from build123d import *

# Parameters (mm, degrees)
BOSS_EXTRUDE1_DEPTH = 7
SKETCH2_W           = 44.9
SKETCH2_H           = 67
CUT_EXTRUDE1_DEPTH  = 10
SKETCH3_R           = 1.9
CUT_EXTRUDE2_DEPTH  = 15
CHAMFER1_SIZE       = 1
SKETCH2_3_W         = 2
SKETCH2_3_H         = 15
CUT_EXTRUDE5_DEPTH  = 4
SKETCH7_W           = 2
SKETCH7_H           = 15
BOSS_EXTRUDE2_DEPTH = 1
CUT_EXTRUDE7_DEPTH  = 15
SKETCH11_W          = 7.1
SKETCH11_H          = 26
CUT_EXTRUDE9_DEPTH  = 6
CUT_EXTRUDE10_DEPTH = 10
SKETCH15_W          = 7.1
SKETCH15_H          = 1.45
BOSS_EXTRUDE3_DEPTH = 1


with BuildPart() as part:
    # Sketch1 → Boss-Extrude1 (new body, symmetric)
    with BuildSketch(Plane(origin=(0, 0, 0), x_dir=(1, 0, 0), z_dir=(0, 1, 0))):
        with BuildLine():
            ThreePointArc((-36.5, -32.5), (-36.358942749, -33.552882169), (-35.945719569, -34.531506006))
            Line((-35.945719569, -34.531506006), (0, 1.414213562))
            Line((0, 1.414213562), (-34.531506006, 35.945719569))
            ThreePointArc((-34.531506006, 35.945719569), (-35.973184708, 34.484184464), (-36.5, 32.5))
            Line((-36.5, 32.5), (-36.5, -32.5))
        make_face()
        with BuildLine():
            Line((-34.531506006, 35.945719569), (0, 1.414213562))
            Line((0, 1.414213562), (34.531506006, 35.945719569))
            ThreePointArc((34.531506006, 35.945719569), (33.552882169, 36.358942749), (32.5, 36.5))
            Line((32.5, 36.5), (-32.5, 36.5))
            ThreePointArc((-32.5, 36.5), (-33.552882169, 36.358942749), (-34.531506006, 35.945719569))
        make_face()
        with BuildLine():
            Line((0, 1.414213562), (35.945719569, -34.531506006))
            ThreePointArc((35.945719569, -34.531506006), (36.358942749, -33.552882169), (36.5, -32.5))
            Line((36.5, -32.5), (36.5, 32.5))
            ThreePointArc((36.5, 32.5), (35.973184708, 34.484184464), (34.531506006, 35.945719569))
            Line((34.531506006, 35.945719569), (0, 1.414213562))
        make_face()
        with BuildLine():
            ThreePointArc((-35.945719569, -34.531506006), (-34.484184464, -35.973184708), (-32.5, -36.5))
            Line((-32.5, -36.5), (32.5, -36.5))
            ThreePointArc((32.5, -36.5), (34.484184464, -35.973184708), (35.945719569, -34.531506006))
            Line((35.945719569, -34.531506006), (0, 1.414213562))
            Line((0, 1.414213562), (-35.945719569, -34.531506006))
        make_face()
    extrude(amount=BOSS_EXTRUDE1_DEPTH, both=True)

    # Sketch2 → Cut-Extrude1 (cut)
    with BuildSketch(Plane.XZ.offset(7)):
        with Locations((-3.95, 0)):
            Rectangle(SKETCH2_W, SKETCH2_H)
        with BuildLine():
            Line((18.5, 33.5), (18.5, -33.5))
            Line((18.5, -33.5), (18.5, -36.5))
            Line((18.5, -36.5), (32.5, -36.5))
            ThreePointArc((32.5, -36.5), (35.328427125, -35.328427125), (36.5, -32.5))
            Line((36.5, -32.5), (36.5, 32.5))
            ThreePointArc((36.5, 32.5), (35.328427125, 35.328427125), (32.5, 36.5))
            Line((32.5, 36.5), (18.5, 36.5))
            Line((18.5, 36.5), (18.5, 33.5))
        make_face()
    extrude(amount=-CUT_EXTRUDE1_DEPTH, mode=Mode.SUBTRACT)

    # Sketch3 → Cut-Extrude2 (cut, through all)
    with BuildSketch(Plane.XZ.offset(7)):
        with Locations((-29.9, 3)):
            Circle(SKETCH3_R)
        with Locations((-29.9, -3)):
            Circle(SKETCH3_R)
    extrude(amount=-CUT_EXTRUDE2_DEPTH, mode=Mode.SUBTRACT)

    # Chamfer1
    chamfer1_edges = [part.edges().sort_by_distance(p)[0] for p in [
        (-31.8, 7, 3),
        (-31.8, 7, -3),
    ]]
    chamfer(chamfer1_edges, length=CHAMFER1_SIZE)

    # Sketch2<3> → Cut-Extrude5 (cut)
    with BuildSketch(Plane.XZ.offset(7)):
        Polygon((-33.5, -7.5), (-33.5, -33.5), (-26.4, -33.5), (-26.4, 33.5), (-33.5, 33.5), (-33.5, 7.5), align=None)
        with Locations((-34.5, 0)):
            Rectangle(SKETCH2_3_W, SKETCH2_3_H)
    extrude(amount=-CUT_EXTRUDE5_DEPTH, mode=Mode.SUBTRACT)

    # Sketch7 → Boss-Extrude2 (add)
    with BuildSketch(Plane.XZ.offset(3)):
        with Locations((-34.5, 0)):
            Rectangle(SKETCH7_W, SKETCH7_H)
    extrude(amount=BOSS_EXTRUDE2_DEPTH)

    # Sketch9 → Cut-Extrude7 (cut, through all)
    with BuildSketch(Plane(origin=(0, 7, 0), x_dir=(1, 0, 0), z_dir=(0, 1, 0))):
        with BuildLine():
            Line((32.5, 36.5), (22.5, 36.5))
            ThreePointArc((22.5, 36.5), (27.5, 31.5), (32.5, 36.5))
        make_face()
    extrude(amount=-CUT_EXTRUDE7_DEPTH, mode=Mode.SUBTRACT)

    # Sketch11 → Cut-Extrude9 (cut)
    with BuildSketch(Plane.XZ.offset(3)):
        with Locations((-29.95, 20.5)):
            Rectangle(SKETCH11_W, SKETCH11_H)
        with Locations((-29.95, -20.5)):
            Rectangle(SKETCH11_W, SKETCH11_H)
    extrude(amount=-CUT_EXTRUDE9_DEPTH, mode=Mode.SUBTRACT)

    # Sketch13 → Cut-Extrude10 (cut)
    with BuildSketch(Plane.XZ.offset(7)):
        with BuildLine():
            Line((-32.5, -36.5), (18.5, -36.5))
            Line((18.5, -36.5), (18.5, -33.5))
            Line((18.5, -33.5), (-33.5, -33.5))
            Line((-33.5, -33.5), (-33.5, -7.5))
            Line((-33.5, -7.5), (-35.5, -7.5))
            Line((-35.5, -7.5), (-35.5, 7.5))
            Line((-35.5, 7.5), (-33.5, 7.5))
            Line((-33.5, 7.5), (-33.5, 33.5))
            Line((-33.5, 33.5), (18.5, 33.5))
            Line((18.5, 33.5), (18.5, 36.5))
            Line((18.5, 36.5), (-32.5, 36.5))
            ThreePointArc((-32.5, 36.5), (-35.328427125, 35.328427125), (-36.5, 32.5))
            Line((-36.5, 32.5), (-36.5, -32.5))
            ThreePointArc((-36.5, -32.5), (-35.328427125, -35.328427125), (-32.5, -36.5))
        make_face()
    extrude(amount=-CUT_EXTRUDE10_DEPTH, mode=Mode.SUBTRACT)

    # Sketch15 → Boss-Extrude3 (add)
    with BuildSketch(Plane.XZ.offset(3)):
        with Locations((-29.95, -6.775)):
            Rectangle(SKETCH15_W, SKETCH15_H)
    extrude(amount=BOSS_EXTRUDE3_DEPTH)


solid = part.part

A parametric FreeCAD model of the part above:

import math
import FreeCAD as App
import Part
import Sketcher
Q = App.Units.Quantity


def edges_at(feature, points):
    """Names of the edges that pass closest to the given points."""
    edges = feature.Shape.Edges
    near = lambda p: min(range(len(edges)), key=lambda i: edges[i].distToShape(Part.Vertex(*p))[0])
    return sorted({f"Edge{near(p) + 1}" for p in points})

doc = App.newDocument("Part")
params = doc.addObject("Spreadsheet::Sheet", "Params")
for row, (alias, value) in enumerate([
    ("sketch1_radius", "4 mm"),
    ("sketch1_width", "65 mm"),
    ("pad1_length", "14 mm"),
    ("sketch2_radius", "4 mm"),
    ("sketch2_width", "14 mm"),
    ("sketch2_height", "67 mm"),
    ("sketch2_height2", "3 mm"),
    ("sketch2_width2", "44.9 mm"),
    ("pocket1_length", "10 mm"),
    ("sketch3_diameter", "3.8 mm"),
    ("chamfer_size", "1 mm"),
    ("sketch4_width", "2 mm"),
    ("sketch4_height", "67 mm"),
    ("sketch4_height2", "26 mm"),
    ("sketch4_width2", "7.1 mm"),
    ("pocket3_length", "4 mm"),
    ("sketch5_width", "2 mm"),
    ("sketch5_height", "15 mm"),
    ("pad2_length", "1 mm"),
    ("sketch6_radius", "5 mm"),
    ("sketch7_height", "26 mm"),
    ("sketch7_width", "7.1 mm"),
    ("pocket5_length", "6 mm"),
    ("sketch8_radius", "4 mm"),
    ("sketch8_width", "51 mm"),
    ("sketch8_width2", "52 mm"),
    ("sketch8_width3", "2 mm"),
    ("sketch8_height", "3 mm"),
    ("pocket6_length", "10 mm"),
    ("sketch9_width", "7.1 mm"),
    ("sketch9_height", "1.45 mm"),
    ("pad3_length", "1 mm"),
], start=1):
    params.set(f"A{row}", alias)
    params.set(f"B{row}", "=" + value)
    params.setAlias(f"B{row}", alias)

body = doc.addObject("PartDesign::Body", "Body")

# Sketch on XZ plane
sketch1 = doc.addObject("Sketcher::SketchObject", "Sketch")
body.addObject(sketch1)
sketch1.AttachmentSupport = (doc.XZ_Plane, [""])
sketch1.MapMode = "FlatFace"
sketch1.addGeometry(Part.ArcOfCircle(Part.Circle(App.Vector(-32.5, 32.5, 0), App.Vector(0, 0, 1), 4), math.radians(149.477512), math.radians(180)), False)
sketch1.addGeometry(Part.ArcOfCircle(Part.Circle(App.Vector(-32.5, 32.5, 0), App.Vector(0, 0, 1), 4), math.radians(90), math.radians(149.477512)), False)
sketch1.addGeometry(Part.LineSegment(App.Vector(-32.5, 36.5, 0), App.Vector(32.5, 36.5, 0)), False)
sketch1.addGeometry(Part.ArcOfCircle(Part.Circle(App.Vector(32.5, 32.5, 0), App.Vector(0, 0, 1), 4), math.radians(30.522488), math.radians(90)), False)
sketch1.addGeometry(Part.ArcOfCircle(Part.Circle(App.Vector(32.5, 32.5, 0), App.Vector(0, 0, 1), 4), math.radians(0), math.radians(30.522488)), False)
sketch1.addGeometry(Part.LineSegment(App.Vector(36.5, 32.5, 0), App.Vector(36.5, -32.5, 0)), False)
sketch1.addGeometry(Part.ArcOfCircle(Part.Circle(App.Vector(32.5, -32.5, 0), App.Vector(0, 0, 1), 4), math.radians(-59.477512), math.radians(0)), False)
sketch1.addGeometry(Part.ArcOfCircle(Part.Circle(App.Vector(32.5, -32.5, 0), App.Vector(0, 0, 1), 4), math.radians(-90), math.radians(-59.477512)), False)
sketch1.addGeometry(Part.LineSegment(App.Vector(32.5, -36.5, 0), App.Vector(-32.5, -36.5, 0)), False)
sketch1.addGeometry(Part.ArcOfCircle(Part.Circle(App.Vector(-32.5, -32.5, 0), App.Vector(0, 0, 1), 4), math.radians(-120.522488), math.radians(-90)), False)
sketch1.addGeometry(Part.ArcOfCircle(Part.Circle(App.Vector(-32.5, -32.5, 0), App.Vector(0, 0, 1), 4), math.radians(180), math.radians(239.477512)), False)
sketch1.addGeometry(Part.LineSegment(App.Vector(-36.5, -32.5, 0), App.Vector(-36.5, 32.5, 0)), False)
sketch1.addConstraint(Sketcher.Constraint("Tangent", 0, 1, 1, 2))
sketch1.addConstraint(Sketcher.Constraint("Tangent", 1, 1, 2, 1))
sketch1.addConstraint(Sketcher.Constraint("Tangent", 2, 2, 3, 2))
sketch1.addConstraint(Sketcher.Constraint("Tangent", 3, 1, 4, 2))
sketch1.addConstraint(Sketcher.Constraint("Tangent", 4, 1, 5, 1))
sketch1.addConstraint(Sketcher.Constraint("Tangent", 5, 2, 6, 2))
sketch1.addConstraint(Sketcher.Constraint("Tangent", 6, 1, 7, 2))
sketch1.addConstraint(Sketcher.Constraint("Tangent", 7, 1, 8, 1))
sketch1.addConstraint(Sketcher.Constraint("Tangent", 8, 2, 9, 2))
sketch1.addConstraint(Sketcher.Constraint("Tangent", 9, 1, 10, 2))
sketch1.addConstraint(Sketcher.Constraint("Tangent", 10, 1, 11, 1))
sketch1.addConstraint(Sketcher.Constraint("Tangent", 11, 2, 0, 2))
sketch1.addConstraint(Sketcher.Constraint("Horizontal", 2))
sketch1.addConstraint(Sketcher.Constraint("Vertical", 5))
sketch1.addConstraint(Sketcher.Constraint("Horizontal", 8))
sketch1.addConstraint(Sketcher.Constraint("Vertical", 11))
sketch1.addConstraint(Sketcher.Constraint("Equal", 0, 1))
sketch1.addConstraint(Sketcher.Constraint("Equal", 1, 3))
sketch1.addConstraint(Sketcher.Constraint("Equal", 3, 4))
sketch1.addConstraint(Sketcher.Constraint("Equal", 4, 6))
sketch1.addConstraint(Sketcher.Constraint("Equal", 6, 7))
sketch1.addConstraint(Sketcher.Constraint("Equal", 7, 9))
sketch1.addConstraint(Sketcher.Constraint("Equal", 9, 10))
sketch1.addConstraint(Sketcher.Constraint("Symmetric", 0, 3, 6, 3, -1, 1))
sketch1.addConstraint(Sketcher.Constraint("Horizontal", 0, 1, 3, 1))
sketch1.addConstraint(Sketcher.Constraint("Horizontal", 6, 1, 9, 1))
sketch1.addConstraint(Sketcher.Constraint("Equal", 8, 5))
sketch1.addConstraint(Sketcher.Constraint("Radius", 0, Q("4 mm")))
sketch1.addConstraint(Sketcher.Constraint("DistanceX", 2, 1, 2, 2, Q("65 mm")))
sketch1.addConstraint(Sketcher.Constraint("DistanceX", 0, 1, -1, 1, Q("35.94572 mm")))
sketch1.addConstraint(Sketcher.Constraint("DistanceY", 6, 1, -1, 1, Q("35.94572 mm")))
sketch1.setExpression("Constraints[27]", "Params.sketch1_radius")
sketch1.setExpression("Constraints[28]", "Params.sketch1_width")
pad1 = doc.addObject("PartDesign::Pad", "Pad")
body.addObject(pad1)
pad1.Profile = sketch1
pad1.setExpression("Length", "Params.pad1_length")
pad1.Midplane = True

# Sketch on XZ plane
sketch2 = doc.addObject("Sketcher::SketchObject", "Sketch001")
body.addObject(sketch2)
sketch2.AttachmentSupport = (doc.XZ_Plane, [""])
sketch2.MapMode = "FlatFace"
sketch2.AttachmentOffset = App.Placement(App.Vector(0, 0, 7), App.Rotation())
sketch2.addGeometry(Part.LineSegment(App.Vector(-26.4, 33.5, 0), App.Vector(-26.4, -33.5, 0)), False)
sketch2.addGeometry(Part.LineSegment(App.Vector(-26.4, -33.5, 0), App.Vector(18.5, -33.5, 0)), False)
sketch2.addGeometry(Part.LineSegment(App.Vector(18.5, -33.5, 0), App.Vector(18.5, -36.5, 0)), False)
sketch2.addGeometry(Part.LineSegment(App.Vector(18.5, -36.5, 0), App.Vector(32.5, -36.5, 0)), False)
sketch2.addGeometry(Part.ArcOfCircle(Part.Circle(App.Vector(32.5, -32.5, 0), App.Vector(0, 0, 1), 4), math.radians(-90), math.radians(0)), False)
sketch2.addGeometry(Part.LineSegment(App.Vector(36.5, -32.5, 0), App.Vector(36.5, 32.5, 0)), False)
sketch2.addGeometry(Part.ArcOfCircle(Part.Circle(App.Vector(32.5, 32.5, 0), App.Vector(0, 0, 1), 4), math.radians(0), math.radians(90)), False)
sketch2.addGeometry(Part.LineSegment(App.Vector(32.5, 36.5, 0), App.Vector(18.5, 36.5, 0)), False)
sketch2.addGeometry(Part.LineSegment(App.Vector(18.5, 36.5, 0), App.Vector(18.5, 33.5, 0)), False)
sketch2.addGeometry(Part.LineSegment(App.Vector(18.5, 33.5, 0), App.Vector(-26.4, 33.5, 0)), False)
sketch2.addConstraint(Sketcher.Constraint("Coincident", 0, 2, 1, 1))
sketch2.addConstraint(Sketcher.Constraint("Coincident", 1, 2, 2, 1))
sketch2.addConstraint(Sketcher.Constraint("Coincident", 2, 2, 3, 1))
sketch2.addConstraint(Sketcher.Constraint("Tangent", 3, 2, 4, 1))
sketch2.addConstraint(Sketcher.Constraint("Tangent", 4, 2, 5, 1))
sketch2.addConstraint(Sketcher.Constraint("Tangent", 5, 2, 6, 1))
sketch2.addConstraint(Sketcher.Constraint("Tangent", 6, 2, 7, 1))
sketch2.addConstraint(Sketcher.Constraint("Coincident", 7, 2, 8, 1))
sketch2.addConstraint(Sketcher.Constraint("Coincident", 8, 2, 9, 1))
sketch2.addConstraint(Sketcher.Constraint("Coincident", 9, 2, 0, 1))
sketch2.addConstraint(Sketcher.Constraint("Vertical", 0))
sketch2.addConstraint(Sketcher.Constraint("Horizontal", 1))
sketch2.addConstraint(Sketcher.Constraint("Vertical", 2))
sketch2.addConstraint(Sketcher.Constraint("Horizontal", 3))
sketch2.addConstraint(Sketcher.Constraint("Vertical", 5))
sketch2.addConstraint(Sketcher.Constraint("Horizontal", 7))
sketch2.addConstraint(Sketcher.Constraint("Vertical", 8))
sketch2.addConstraint(Sketcher.Constraint("Horizontal", 9))
sketch2.addConstraint(Sketcher.Constraint("Equal", 4, 6))
sketch2.addConstraint(Sketcher.Constraint("Symmetric", 2, 2, 7, 2, -1))
sketch2.addConstraint(Sketcher.Constraint("Equal", 2, 8))
sketch2.addConstraint(Sketcher.Constraint("Radius", 4, Q("4 mm")))
sketch2.addConstraint(Sketcher.Constraint("DistanceX", 3, 1, 3, 2, Q("14 mm")))
sketch2.addConstraint(Sketcher.Constraint("DistanceY", 0, 2, 0, 1, Q("67 mm")))
sketch2.addConstraint(Sketcher.Constraint("DistanceY", 2, 2, 2, 1, Q("3 mm")))
sketch2.addConstraint(Sketcher.Constraint("DistanceX", 1, 1, 1, 2, Q("44.9 mm")))
sketch2.addConstraint(Sketcher.Constraint("DistanceX", -1, 1, 4, 3, Q("32.5 mm")))
sketch2.setExpression("Constraints[21]", "Params.sketch2_radius")
sketch2.setExpression("Constraints[22]", "Params.sketch2_width")
sketch2.setExpression("Constraints[23]", "Params.sketch2_height")
sketch2.setExpression("Constraints[24]", "Params.sketch2_height2")
sketch2.setExpression("Constraints[25]", "Params.sketch2_width2")
pocket1 = doc.addObject("PartDesign::Pocket", "Pocket")
body.addObject(pocket1)
pocket1.Profile = sketch2
pocket1.setExpression("Length", "Params.pocket1_length")

# Sketch on XZ plane
sketch3 = doc.addObject("Sketcher::SketchObject", "Sketch002")
body.addObject(sketch3)
sketch3.AttachmentSupport = (doc.XZ_Plane, [""])
sketch3.MapMode = "FlatFace"
sketch3.AttachmentOffset = App.Placement(App.Vector(0, 0, 7), App.Rotation())
sketch3.addGeometry(Part.Circle(App.Vector(-29.9, 3, 0), App.Vector(0, 0, 1), 1.9), False)
sketch3.addGeometry(Part.Circle(App.Vector(-29.9, -3, 0), App.Vector(0, 0, 1), 1.9), False)
sketch3.addConstraint(Sketcher.Constraint("Equal", 0, 1))
sketch3.addConstraint(Sketcher.Constraint("Symmetric", 0, 3, 1, 3, -1))
sketch3.addConstraint(Sketcher.Constraint("Diameter", 0, Q("3.8 mm")))
sketch3.addConstraint(Sketcher.Constraint("DistanceY", -1, 1, 0, 3, Q("3 mm")))
sketch3.addConstraint(Sketcher.Constraint("DistanceX", 0, 3, -1, 1, Q("29.9 mm")))
sketch3.setExpression("Constraints[2]", "Params.sketch3_diameter")
pocket2 = doc.addObject("PartDesign::Pocket", "Pocket001")
body.addObject(pocket2)
pocket2.Profile = sketch3
pocket2.Type = "ThroughAll"
doc.recompute()

chamfer = doc.addObject("PartDesign::Chamfer", "Chamfer")
body.addObject(chamfer)
chamfer.Base = (pocket2, edges_at(pocket2, [(-31.8, 7, 3), (-31.8, 7, -3)]))
chamfer.setExpression("Size", "Params.chamfer_size")

# Sketch on XZ plane
sketch4 = doc.addObject("Sketcher::SketchObject", "Sketch003")
body.addObject(sketch4)
sketch4.AttachmentSupport = (doc.XZ_Plane, [""])
sketch4.MapMode = "FlatFace"
sketch4.AttachmentOffset = App.Placement(App.Vector(0, 0, 7), App.Rotation())
sketch4.addGeometry(Part.LineSegment(App.Vector(-33.5, -33.5, 0), App.Vector(-26.4, -33.5, 0)), False)
sketch4.addGeometry(Part.LineSegment(App.Vector(-26.4, -33.5, 0), App.Vector(-26.4, 33.5, 0)), False)
sketch4.addGeometry(Part.LineSegment(App.Vector(-26.4, 33.5, 0), App.Vector(-33.5, 33.5, 0)), False)
sketch4.addGeometry(Part.LineSegment(App.Vector(-33.5, 33.5, 0), App.Vector(-33.5, 7.5, 0)), False)
sketch4.addGeometry(Part.LineSegment(App.Vector(-33.5, 7.5, 0), App.Vector(-35.5, 7.5, 0)), False)
sketch4.addGeometry(Part.LineSegment(App.Vector(-35.5, 7.5, 0), App.Vector(-35.5, -7.5, 0)), False)
sketch4.addGeometry(Part.LineSegment(App.Vector(-35.5, -7.5, 0), App.Vector(-33.5, -7.5, 0)), False)
sketch4.addGeometry(Part.LineSegment(App.Vector(-33.5, -7.5, 0), App.Vector(-33.5, -33.5, 0)), False)
sketch4.addConstraint(Sketcher.Constraint("Coincident", 0, 2, 1, 1))
sketch4.addConstraint(Sketcher.Constraint("Coincident", 1, 2, 2, 1))
sketch4.addConstraint(Sketcher.Constraint("Coincident", 2, 2, 3, 1))
sketch4.addConstraint(Sketcher.Constraint("Coincident", 3, 2, 4, 1))
sketch4.addConstraint(Sketcher.Constraint("Coincident", 4, 2, 5, 1))
sketch4.addConstraint(Sketcher.Constraint("Coincident", 5, 2, 6, 1))
sketch4.addConstraint(Sketcher.Constraint("Coincident", 6, 2, 7, 1))
sketch4.addConstraint(Sketcher.Constraint("Coincident", 7, 2, 0, 1))
sketch4.addConstraint(Sketcher.Constraint("Horizontal", 0))
sketch4.addConstraint(Sketcher.Constraint("Vertical", 1))
sketch4.addConstraint(Sketcher.Constraint("Horizontal", 2))
sketch4.addConstraint(Sketcher.Constraint("Vertical", 3))
sketch4.addConstraint(Sketcher.Constraint("Horizontal", 4))
sketch4.addConstraint(Sketcher.Constraint("Vertical", 5))
sketch4.addConstraint(Sketcher.Constraint("Horizontal", 6))
sketch4.addConstraint(Sketcher.Constraint("Vertical", 7))
sketch4.addConstraint(Sketcher.Constraint("Symmetric", 3, 2, 6, 2, -1))
sketch4.addConstraint(Sketcher.Constraint("Equal", 3, 7))
sketch4.addConstraint(Sketcher.Constraint("DistanceX", 4, 2, 4, 1, Q("2 mm")))
sketch4.addConstraint(Sketcher.Constraint("DistanceY", 1, 1, 1, 2, Q("67 mm")))
sketch4.addConstraint(Sketcher.Constraint("DistanceY", 3, 2, 3, 1, Q("26 mm")))
sketch4.addConstraint(Sketcher.Constraint("DistanceX", 0, 1, 0, 2, Q("7.1 mm")))
sketch4.addConstraint(Sketcher.Constraint("DistanceX", 0, 2, -1, 1, Q("26.4 mm")))
sketch4.setExpression("Constraints[18]", "Params.sketch4_width")
sketch4.setExpression("Constraints[19]", "Params.sketch4_height")
sketch4.setExpression("Constraints[20]", "Params.sketch4_height2")
sketch4.setExpression("Constraints[21]", "Params.sketch4_width2")
pocket3 = doc.addObject("PartDesign::Pocket", "Pocket002")
body.addObject(pocket3)
pocket3.Profile = sketch4
pocket3.setExpression("Length", "Params.pocket3_length")

# Sketch on XZ plane
sketch5 = doc.addObject("Sketcher::SketchObject", "Sketch004")
body.addObject(sketch5)
sketch5.AttachmentSupport = (doc.XZ_Plane, [""])
sketch5.MapMode = "FlatFace"
sketch5.AttachmentOffset = App.Placement(App.Vector(0, 0, 3), App.Rotation())
sketch5.addGeometry(Part.LineSegment(App.Vector(-35.5, 7.5, 0), App.Vector(-35.5, -7.5, 0)), False)
sketch5.addGeometry(Part.LineSegment(App.Vector(-35.5, -7.5, 0), App.Vector(-33.5, -7.5, 0)), False)
sketch5.addGeometry(Part.LineSegment(App.Vector(-33.5, -7.5, 0), App.Vector(-33.5, 7.5, 0)), False)
sketch5.addGeometry(Part.LineSegment(App.Vector(-33.5, 7.5, 0), App.Vector(-35.5, 7.5, 0)), False)
sketch5.addConstraint(Sketcher.Constraint("Coincident", 0, 2, 1, 1))
sketch5.addConstraint(Sketcher.Constraint("Coincident", 1, 2, 2, 1))
sketch5.addConstraint(Sketcher.Constraint("Coincident", 2, 2, 3, 1))
sketch5.addConstraint(Sketcher.Constraint("Coincident", 3, 2, 0, 1))
sketch5.addConstraint(Sketcher.Constraint("Vertical", 0))
sketch5.addConstraint(Sketcher.Constraint("Horizontal", 1))
sketch5.addConstraint(Sketcher.Constraint("Vertical", 2))
sketch5.addConstraint(Sketcher.Constraint("Horizontal", 3))
sketch5.addConstraint(Sketcher.Constraint("DistanceX", 1, 1, 1, 2, Q("2 mm")))
sketch5.addConstraint(Sketcher.Constraint("DistanceY", 0, 2, 0, 1, Q("15 mm")))
sketch5.addConstraint(Sketcher.Constraint("DistanceX", 0, 2, -1, 1, Q("35.5 mm")))
sketch5.addConstraint(Sketcher.Constraint("DistanceY", 0, 2, -1, 1, Q("7.5 mm")))
sketch5.setExpression("Constraints[8]", "Params.sketch5_width")
sketch5.setExpression("Constraints[9]", "Params.sketch5_height")
pad2 = doc.addObject("PartDesign::Pad", "Pad001")
body.addObject(pad2)
pad2.Profile = sketch5
pad2.setExpression("Length", "Params.pad2_length")

# Sketch on XZ plane
sketch6 = doc.addObject("Sketcher::SketchObject", "Sketch005")
body.addObject(sketch6)
sketch6.AttachmentSupport = (doc.XZ_Plane, [""])
sketch6.MapMode = "FlatFace"
sketch6.AttachmentOffset = App.Placement(App.Vector(0, 0, -7), App.Rotation())
sketch6.addGeometry(Part.LineSegment(App.Vector(32.5, -36.5, 0), App.Vector(22.5, -36.5, 0)), False)
sketch6.addGeometry(Part.ArcOfCircle(Part.Circle(App.Vector(27.5, -36.5, 0), App.Vector(0, 0, 1), 5), math.radians(0), math.radians(180)), False)
sketch6.addConstraint(Sketcher.Constraint("Coincident", 0, 1, 1, 1))
sketch6.addConstraint(Sketcher.Constraint("Coincident", 1, 2, 0, 2))
sketch6.addConstraint(Sketcher.Constraint("Horizontal", 0))
sketch6.addConstraint(Sketcher.Constraint("Horizontal", 1, 3, 0, 1))
sketch6.addConstraint(Sketcher.Constraint("Radius", 1, Q("5 mm")))
sketch6.addConstraint(Sketcher.Constraint("DistanceX", -1, 1, 1, 3, Q("27.5 mm")))
sketch6.addConstraint(Sketcher.Constraint("DistanceY", 1, 3, -1, 1, Q("36.5 mm")))
sketch6.setExpression("Constraints[4]", "Params.sketch6_radius")
pocket4 = doc.addObject("PartDesign::Pocket", "Pocket003")
body.addObject(pocket4)
pocket4.Profile = sketch6
pocket4.Type = "ThroughAll"
pocket4.Reversed = True

# Sketch on XZ plane
sketch7 = doc.addObject("Sketcher::SketchObject", "Sketch006")
body.addObject(sketch7)
sketch7.AttachmentSupport = (doc.XZ_Plane, [""])
sketch7.MapMode = "FlatFace"
sketch7.AttachmentOffset = App.Placement(App.Vector(0, 0, 3), App.Rotation())
sketch7.addGeometry(Part.LineSegment(App.Vector(-33.5, 33.5, 0), App.Vector(-33.5, 7.5, 0)), False)
sketch7.addGeometry(Part.LineSegment(App.Vector(-33.5, 7.5, 0), App.Vector(-26.4, 7.5, 0)), False)
sketch7.addGeometry(Part.LineSegment(App.Vector(-26.4, 7.5, 0), App.Vector(-26.4, 33.5, 0)), False)
sketch7.addGeometry(Part.LineSegment(App.Vector(-26.4, 33.5, 0), App.Vector(-33.5, 33.5, 0)), False)
sketch7.addGeometry(Part.LineSegment(App.Vector(-33.5, -7.5, 0), App.Vector(-33.5, -33.5, 0)), False)
sketch7.addGeometry(Part.LineSegment(App.Vector(-33.5, -33.5, 0), App.Vector(-26.4, -33.5, 0)), False)
sketch7.addGeometry(Part.LineSegment(App.Vector(-26.4, -33.5, 0), App.Vector(-26.4, -7.5, 0)), False)
sketch7.addGeometry(Part.LineSegment(App.Vector(-26.4, -7.5, 0), App.Vector(-33.5, -7.5, 0)), False)
sketch7.addConstraint(Sketcher.Constraint("Coincident", 0, 2, 1, 1))
sketch7.addConstraint(Sketcher.Constraint("Coincident", 1, 2, 2, 1))
sketch7.addConstraint(Sketcher.Constraint("Coincident", 2, 2, 3, 1))
sketch7.addConstraint(Sketcher.Constraint("Coincident", 3, 2, 0, 1))
sketch7.addConstraint(Sketcher.Constraint("Coincident", 4, 2, 5, 1))
sketch7.addConstraint(Sketcher.Constraint("Coincident", 5, 2, 6, 1))
sketch7.addConstraint(Sketcher.Constraint("Coincident", 6, 2, 7, 1))
sketch7.addConstraint(Sketcher.Constraint("Coincident", 7, 2, 4, 1))
sketch7.addConstraint(Sketcher.Constraint("Vertical", 0))
sketch7.addConstraint(Sketcher.Constraint("Horizontal", 1))
sketch7.addConstraint(Sketcher.Constraint("Vertical", 2))
sketch7.addConstraint(Sketcher.Constraint("Horizontal", 3))
sketch7.addConstraint(Sketcher.Constraint("Vertical", 4))
sketch7.addConstraint(Sketcher.Constraint("Horizontal", 5))
sketch7.addConstraint(Sketcher.Constraint("Vertical", 6))
sketch7.addConstraint(Sketcher.Constraint("Horizontal", 7))
sketch7.addConstraint(Sketcher.Constraint("Symmetric", 3, 2, 4, 2, -1))
sketch7.addConstraint(Sketcher.Constraint("Symmetric", 1, 2, 6, 2, -1))
sketch7.addConstraint(Sketcher.Constraint("DistanceY", 0, 2, 0, 1, Q("26 mm")))
sketch7.addConstraint(Sketcher.Constraint("DistanceX", 1, 1, 1, 2, Q("7.1 mm")))
sketch7.addConstraint(Sketcher.Constraint("DistanceY", 4, 2, 0, 2, Q("41 mm")))
sketch7.addConstraint(Sketcher.Constraint("DistanceX", 0, 2, -1, 1, Q("33.5 mm")))
sketch7.setExpression("Constraints[18]", "Params.sketch7_height")
sketch7.setExpression("Constraints[19]", "Params.sketch7_width")
pocket5 = doc.addObject("PartDesign::Pocket", "Pocket004")
body.addObject(pocket5)
pocket5.Profile = sketch7
pocket5.setExpression("Length", "Params.pocket5_length")

# Sketch on XZ plane
sketch8 = doc.addObject("Sketcher::SketchObject", "Sketch007")
body.addObject(sketch8)
sketch8.AttachmentSupport = (doc.XZ_Plane, [""])
sketch8.MapMode = "FlatFace"
sketch8.AttachmentOffset = App.Placement(App.Vector(0, 0, 7), App.Rotation())
sketch8.addGeometry(Part.LineSegment(App.Vector(-32.5, -36.5, 0), App.Vector(18.5, -36.5, 0)), False)
sketch8.addGeometry(Part.LineSegment(App.Vector(18.5, -36.5, 0), App.Vector(18.5, -33.5, 0)), False)
sketch8.addGeometry(Part.LineSegment(App.Vector(18.5, -33.5, 0), App.Vector(-33.5, -33.5, 0)), False)
sketch8.addGeometry(Part.LineSegment(App.Vector(-33.5, -33.5, 0), App.Vector(-33.5, -7.5, 0)), False)
sketch8.addGeometry(Part.LineSegment(App.Vector(-33.5, -7.5, 0), App.Vector(-35.5, -7.5, 0)), False)
sketch8.addGeometry(Part.LineSegment(App.Vector(-35.5, -7.5, 0), App.Vector(-35.5, 7.5, 0)), False)
sketch8.addGeometry(Part.LineSegment(App.Vector(-35.5, 7.5, 0), App.Vector(-33.5, 7.5, 0)), False)
sketch8.addGeometry(Part.LineSegment(App.Vector(-33.5, 7.5, 0), App.Vector(-33.5, 33.5, 0)), False)
sketch8.addGeometry(Part.LineSegment(App.Vector(-33.5, 33.5, 0), App.Vector(18.5, 33.5, 0)), False)
sketch8.addGeometry(Part.LineSegment(App.Vector(18.5, 33.5, 0), App.Vector(18.5, 36.5, 0)), False)
sketch8.addGeometry(Part.LineSegment(App.Vector(18.5, 36.5, 0), App.Vector(-32.5, 36.5, 0)), False)
sketch8.addGeometry(Part.ArcOfCircle(Part.Circle(App.Vector(-32.5, 32.5, 0), App.Vector(0, 0, 1), 4), math.radians(90), math.radians(180)), False)
sketch8.addGeometry(Part.LineSegment(App.Vector(-36.5, 32.5, 0), App.Vector(-36.5, -32.5, 0)), False)
sketch8.addGeometry(Part.ArcOfCircle(Part.Circle(App.Vector(-32.5, -32.5, 0), App.Vector(0, 0, 1), 4), math.radians(180), math.radians(270)), False)
sketch8.addConstraint(Sketcher.Constraint("Coincident", 0, 2, 1, 1))
sketch8.addConstraint(Sketcher.Constraint("Coincident", 1, 2, 2, 1))
sketch8.addConstraint(Sketcher.Constraint("Coincident", 2, 2, 3, 1))
sketch8.addConstraint(Sketcher.Constraint("Coincident", 3, 2, 4, 1))
sketch8.addConstraint(Sketcher.Constraint("Coincident", 4, 2, 5, 1))
sketch8.addConstraint(Sketcher.Constraint("Coincident", 5, 2, 6, 1))
sketch8.addConstraint(Sketcher.Constraint("Coincident", 6, 2, 7, 1))
sketch8.addConstraint(Sketcher.Constraint("Coincident", 7, 2, 8, 1))
sketch8.addConstraint(Sketcher.Constraint("Coincident", 8, 2, 9, 1))
sketch8.addConstraint(Sketcher.Constraint("Coincident", 9, 2, 10, 1))
sketch8.addConstraint(Sketcher.Constraint("Tangent", 10, 2, 11, 1))
sketch8.addConstraint(Sketcher.Constraint("Tangent", 11, 2, 12, 1))
sketch8.addConstraint(Sketcher.Constraint("Tangent", 12, 2, 13, 1))
sketch8.addConstraint(Sketcher.Constraint("Tangent", 13, 2, 0, 1))
sketch8.addConstraint(Sketcher.Constraint("Horizontal", 0))
sketch8.addConstraint(Sketcher.Constraint("Vertical", 1))
sketch8.addConstraint(Sketcher.Constraint("Horizontal", 2))
sketch8.addConstraint(Sketcher.Constraint("Vertical", 3))
sketch8.addConstraint(Sketcher.Constraint("Horizontal", 4))
sketch8.addConstraint(Sketcher.Constraint("Vertical", 5))
sketch8.addConstraint(Sketcher.Constraint("Horizontal", 6))
sketch8.addConstraint(Sketcher.Constraint("Vertical", 7))
sketch8.addConstraint(Sketcher.Constraint("Horizontal", 8))
sketch8.addConstraint(Sketcher.Constraint("Vertical", 9))
sketch8.addConstraint(Sketcher.Constraint("Horizontal", 10))
sketch8.addConstraint(Sketcher.Constraint("Vertical", 12))
sketch8.addConstraint(Sketcher.Constraint("Equal", 11, 13))
sketch8.addConstraint(Sketcher.Constraint("Symmetric", 3, 2, 6, 2, -1))
sketch8.addConstraint(Sketcher.Constraint("Symmetric", 1, 2, 8, 2, -1))
sketch8.addConstraint(Sketcher.Constraint("Equal", 1, 9))
sketch8.addConstraint(Sketcher.Constraint("Radius", 11, Q("4 mm")))
sketch8.addConstraint(Sketcher.Constraint("DistanceX", 0, 1, 0, 2, Q("51 mm")))
sketch8.addConstraint(Sketcher.Constraint("DistanceX", 2, 2, 2, 1, Q("52 mm")))
sketch8.addConstraint(Sketcher.Constraint("DistanceX", 4, 2, 4, 1, Q("2 mm")))
sketch8.addConstraint(Sketcher.Constraint("DistanceY", 1, 1, 1, 2, Q("3 mm")))
sketch8.addConstraint(Sketcher.Constraint("DistanceY", 3, 1, 3, 2, Q("26 mm")))
sketch8.addConstraint(Sketcher.Constraint("DistanceY", 5, 1, 5, 2, Q("15 mm")))
sketch8.addConstraint(Sketcher.Constraint("DistanceX", 11, 3, -1, 1, Q("32.5 mm")))
sketch8.setExpression("Constraints[30]", "Params.sketch8_radius")
sketch8.setExpression("Constraints[31]", "Params.sketch8_width")
sketch8.setExpression("Constraints[32]", "Params.sketch8_width2")
sketch8.setExpression("Constraints[33]", "Params.sketch8_width3")
sketch8.setExpression("Constraints[34]", "Params.sketch8_height")
pocket6 = doc.addObject("PartDesign::Pocket", "Pocket005")
body.addObject(pocket6)
pocket6.Profile = sketch8
pocket6.setExpression("Length", "Params.pocket6_length")

# Sketch on XZ plane
sketch9 = doc.addObject("Sketcher::SketchObject", "Sketch008")
body.addObject(sketch9)
sketch9.AttachmentSupport = (doc.XZ_Plane, [""])
sketch9.MapMode = "FlatFace"
sketch9.AttachmentOffset = App.Placement(App.Vector(0, 0, 3), App.Rotation())
sketch9.addGeometry(Part.LineSegment(App.Vector(-33.5, -6.05, 0), App.Vector(-33.5, -7.5, 0)), False)
sketch9.addGeometry(Part.LineSegment(App.Vector(-33.5, -7.5, 0), App.Vector(-26.4, -7.5, 0)), False)
sketch9.addGeometry(Part.LineSegment(App.Vector(-26.4, -7.5, 0), App.Vector(-26.4, -6.05, 0)), False)
sketch9.addGeometry(Part.LineSegment(App.Vector(-26.4, -6.05, 0), App.Vector(-33.5, -6.05, 0)), False)
sketch9.addConstraint(Sketcher.Constraint("Coincident", 0, 2, 1, 1))
sketch9.addConstraint(Sketcher.Constraint("Coincident", 1, 2, 2, 1))
sketch9.addConstraint(Sketcher.Constraint("Coincident", 2, 2, 3, 1))
sketch9.addConstraint(Sketcher.Constraint("Coincident", 3, 2, 0, 1))
sketch9.addConstraint(Sketcher.Constraint("Vertical", 0))
sketch9.addConstraint(Sketcher.Constraint("Horizontal", 1))
sketch9.addConstraint(Sketcher.Constraint("Vertical", 2))
sketch9.addConstraint(Sketcher.Constraint("Horizontal", 3))
sketch9.addConstraint(Sketcher.Constraint("DistanceX", 1, 1, 1, 2, Q("7.1 mm")))
sketch9.addConstraint(Sketcher.Constraint("DistanceY", 0, 2, 0, 1, Q("1.45 mm")))
sketch9.addConstraint(Sketcher.Constraint("DistanceX", 0, 2, -1, 1, Q("33.5 mm")))
sketch9.addConstraint(Sketcher.Constraint("DistanceY", 0, 2, -1, 1, Q("7.5 mm")))
sketch9.setExpression("Constraints[8]", "Params.sketch9_width")
sketch9.setExpression("Constraints[9]", "Params.sketch9_height")
pad3 = doc.addObject("PartDesign::Pad", "Pad002")
body.addObject(pad3)
pad3.Profile = sketch9
pad3.setExpression("Length", "Params.pad3_length")

doc.recompute()
